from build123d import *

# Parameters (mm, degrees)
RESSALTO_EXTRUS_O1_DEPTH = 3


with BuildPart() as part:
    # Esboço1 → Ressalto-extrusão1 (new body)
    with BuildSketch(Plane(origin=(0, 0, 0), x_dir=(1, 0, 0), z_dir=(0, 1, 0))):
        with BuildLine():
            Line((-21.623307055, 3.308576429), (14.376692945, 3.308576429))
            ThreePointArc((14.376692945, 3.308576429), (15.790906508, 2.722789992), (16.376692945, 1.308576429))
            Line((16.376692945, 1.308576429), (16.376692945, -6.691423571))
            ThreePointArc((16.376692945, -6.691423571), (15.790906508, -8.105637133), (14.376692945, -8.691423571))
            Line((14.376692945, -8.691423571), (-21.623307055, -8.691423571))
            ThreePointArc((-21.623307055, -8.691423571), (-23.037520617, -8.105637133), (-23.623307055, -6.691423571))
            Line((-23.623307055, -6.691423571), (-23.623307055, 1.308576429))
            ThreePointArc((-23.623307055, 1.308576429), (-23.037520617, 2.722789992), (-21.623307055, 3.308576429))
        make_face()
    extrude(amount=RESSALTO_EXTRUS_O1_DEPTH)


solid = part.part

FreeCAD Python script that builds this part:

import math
import FreeCAD as App
import Part
import Sketcher

V = App.Vector

doc = App.newDocument("Part")
body = doc.addObject("PartDesign::Body", "Body")

sketch1 = body.newObject("Sketcher::SketchObject", "Sketch")
sketch1.AttachmentSupport = (doc.getObject("XZ_Plane"), [""])
sketch1.MapMode = "FlatFace"
sketch1.addGeometry(Part.LineSegment(V(14.4, -3.3, 0), V(-21.6, -3.3, 0)), False)
sketch1.addGeometry(Part.ArcOfCircle(Part.Circle(V(-21.6, -1.3, 0), V(0, 0, 1), 2), math.radians(180), math.radians(270)), False)
sketch1.addGeometry(Part.LineSegment(V(-23.6, -1.3, 0), V(-23.6, 6.7, 0)), False)
sketch1.addGeometry(Part.ArcOfCircle(Part.Circle(V(-21.6, 6.7, 0), V(0, 0, 1), 2), math.radians(90), math.radians(180)), False)
sketch1.addGeometry(Part.LineSegment(V(-21.6, 8.7, 0), V(14.4, 8.7, 0)), False)
sketch1.addGeometry(Part.ArcOfCircle(Part.Circle(V(14.4, 6.7, 0), V(0, 0, 1), 2), math.radians(0), math.radians(90)), False)
sketch1.addGeometry(Part.LineSegment(V(16.4, 6.7, 0), V(16.4, -1.3, 0)), False)
sketch1.addGeometry(Part.ArcOfCircle(Part.Circle(V(14.4, -1.3, 0), V(0, 0, 1), 2), math.radians(-90), math.radians(0)), False)
sketch1.addConstraint(Sketcher.Constraint("Tangent", 0, 2, 1, 2))
sketch1.addConstraint(Sketcher.Constraint("Tangent", 1, 1, 2, 1))
sketch1.addConstraint(Sketcher.Constraint("Tangent", 2, 2, 3, 2))
sketch1.addConstraint(Sketcher.Constraint("Tangent", 3, 1, 4, 1))
sketch1.addConstraint(Sketcher.Constraint("Tangent", 4, 2, 5, 2))
sketch1.addConstraint(Sketcher.Constraint("Tangent", 5, 1, 6, 1))
sketch1.addConstraint(Sketcher.Constraint("Tangent", 6, 2, 7, 2))
sketch1.addConstraint(Sketcher.Constraint("Tangent", 7, 1, 0, 1))
sketch1.addConstraint(Sketcher.Constraint("Horizontal", 0))
sketch1.addConstraint(Sketcher.Constraint("Vertical", 2))
sketch1.addConstraint(Sketcher.Constraint("Horizontal", 4))
sketch1.addConstraint(Sketcher.Constraint("Vertical", 6))
sketch1.addConstraint(Sketcher.Constraint("Equal", 1, 3))
sketch1.addConstraint(Sketcher.Constraint("Equal", 3, 5))
sketch1.addConstraint(Sketcher.Constraint("Equal", 5, 7))
sketch1.addConstraint(Sketcher.Constraint("Radius", 1, 2.0))
sketch1.addConstraint(Sketcher.Constraint("DistanceX", 0, 2, 0, 1, 36.0))
sketch1.addConstraint(Sketcher.Constraint("DistanceY", 2, 1, 2, 2, 8.0))
sketch1.addConstraint(Sketcher.Constraint("DistanceX", 1, 3, -1, 1, 21.623307))
sketch1.addConstraint(Sketcher.Constraint("DistanceY", 1, 3, -1, 1, 1.308576))
pad1 = body.newObject("PartDesign::Pad", "Pad")
pad1.Profile = sketch1
pad1.Length = 3
pad1.Reversed = True

doc.recompute()
